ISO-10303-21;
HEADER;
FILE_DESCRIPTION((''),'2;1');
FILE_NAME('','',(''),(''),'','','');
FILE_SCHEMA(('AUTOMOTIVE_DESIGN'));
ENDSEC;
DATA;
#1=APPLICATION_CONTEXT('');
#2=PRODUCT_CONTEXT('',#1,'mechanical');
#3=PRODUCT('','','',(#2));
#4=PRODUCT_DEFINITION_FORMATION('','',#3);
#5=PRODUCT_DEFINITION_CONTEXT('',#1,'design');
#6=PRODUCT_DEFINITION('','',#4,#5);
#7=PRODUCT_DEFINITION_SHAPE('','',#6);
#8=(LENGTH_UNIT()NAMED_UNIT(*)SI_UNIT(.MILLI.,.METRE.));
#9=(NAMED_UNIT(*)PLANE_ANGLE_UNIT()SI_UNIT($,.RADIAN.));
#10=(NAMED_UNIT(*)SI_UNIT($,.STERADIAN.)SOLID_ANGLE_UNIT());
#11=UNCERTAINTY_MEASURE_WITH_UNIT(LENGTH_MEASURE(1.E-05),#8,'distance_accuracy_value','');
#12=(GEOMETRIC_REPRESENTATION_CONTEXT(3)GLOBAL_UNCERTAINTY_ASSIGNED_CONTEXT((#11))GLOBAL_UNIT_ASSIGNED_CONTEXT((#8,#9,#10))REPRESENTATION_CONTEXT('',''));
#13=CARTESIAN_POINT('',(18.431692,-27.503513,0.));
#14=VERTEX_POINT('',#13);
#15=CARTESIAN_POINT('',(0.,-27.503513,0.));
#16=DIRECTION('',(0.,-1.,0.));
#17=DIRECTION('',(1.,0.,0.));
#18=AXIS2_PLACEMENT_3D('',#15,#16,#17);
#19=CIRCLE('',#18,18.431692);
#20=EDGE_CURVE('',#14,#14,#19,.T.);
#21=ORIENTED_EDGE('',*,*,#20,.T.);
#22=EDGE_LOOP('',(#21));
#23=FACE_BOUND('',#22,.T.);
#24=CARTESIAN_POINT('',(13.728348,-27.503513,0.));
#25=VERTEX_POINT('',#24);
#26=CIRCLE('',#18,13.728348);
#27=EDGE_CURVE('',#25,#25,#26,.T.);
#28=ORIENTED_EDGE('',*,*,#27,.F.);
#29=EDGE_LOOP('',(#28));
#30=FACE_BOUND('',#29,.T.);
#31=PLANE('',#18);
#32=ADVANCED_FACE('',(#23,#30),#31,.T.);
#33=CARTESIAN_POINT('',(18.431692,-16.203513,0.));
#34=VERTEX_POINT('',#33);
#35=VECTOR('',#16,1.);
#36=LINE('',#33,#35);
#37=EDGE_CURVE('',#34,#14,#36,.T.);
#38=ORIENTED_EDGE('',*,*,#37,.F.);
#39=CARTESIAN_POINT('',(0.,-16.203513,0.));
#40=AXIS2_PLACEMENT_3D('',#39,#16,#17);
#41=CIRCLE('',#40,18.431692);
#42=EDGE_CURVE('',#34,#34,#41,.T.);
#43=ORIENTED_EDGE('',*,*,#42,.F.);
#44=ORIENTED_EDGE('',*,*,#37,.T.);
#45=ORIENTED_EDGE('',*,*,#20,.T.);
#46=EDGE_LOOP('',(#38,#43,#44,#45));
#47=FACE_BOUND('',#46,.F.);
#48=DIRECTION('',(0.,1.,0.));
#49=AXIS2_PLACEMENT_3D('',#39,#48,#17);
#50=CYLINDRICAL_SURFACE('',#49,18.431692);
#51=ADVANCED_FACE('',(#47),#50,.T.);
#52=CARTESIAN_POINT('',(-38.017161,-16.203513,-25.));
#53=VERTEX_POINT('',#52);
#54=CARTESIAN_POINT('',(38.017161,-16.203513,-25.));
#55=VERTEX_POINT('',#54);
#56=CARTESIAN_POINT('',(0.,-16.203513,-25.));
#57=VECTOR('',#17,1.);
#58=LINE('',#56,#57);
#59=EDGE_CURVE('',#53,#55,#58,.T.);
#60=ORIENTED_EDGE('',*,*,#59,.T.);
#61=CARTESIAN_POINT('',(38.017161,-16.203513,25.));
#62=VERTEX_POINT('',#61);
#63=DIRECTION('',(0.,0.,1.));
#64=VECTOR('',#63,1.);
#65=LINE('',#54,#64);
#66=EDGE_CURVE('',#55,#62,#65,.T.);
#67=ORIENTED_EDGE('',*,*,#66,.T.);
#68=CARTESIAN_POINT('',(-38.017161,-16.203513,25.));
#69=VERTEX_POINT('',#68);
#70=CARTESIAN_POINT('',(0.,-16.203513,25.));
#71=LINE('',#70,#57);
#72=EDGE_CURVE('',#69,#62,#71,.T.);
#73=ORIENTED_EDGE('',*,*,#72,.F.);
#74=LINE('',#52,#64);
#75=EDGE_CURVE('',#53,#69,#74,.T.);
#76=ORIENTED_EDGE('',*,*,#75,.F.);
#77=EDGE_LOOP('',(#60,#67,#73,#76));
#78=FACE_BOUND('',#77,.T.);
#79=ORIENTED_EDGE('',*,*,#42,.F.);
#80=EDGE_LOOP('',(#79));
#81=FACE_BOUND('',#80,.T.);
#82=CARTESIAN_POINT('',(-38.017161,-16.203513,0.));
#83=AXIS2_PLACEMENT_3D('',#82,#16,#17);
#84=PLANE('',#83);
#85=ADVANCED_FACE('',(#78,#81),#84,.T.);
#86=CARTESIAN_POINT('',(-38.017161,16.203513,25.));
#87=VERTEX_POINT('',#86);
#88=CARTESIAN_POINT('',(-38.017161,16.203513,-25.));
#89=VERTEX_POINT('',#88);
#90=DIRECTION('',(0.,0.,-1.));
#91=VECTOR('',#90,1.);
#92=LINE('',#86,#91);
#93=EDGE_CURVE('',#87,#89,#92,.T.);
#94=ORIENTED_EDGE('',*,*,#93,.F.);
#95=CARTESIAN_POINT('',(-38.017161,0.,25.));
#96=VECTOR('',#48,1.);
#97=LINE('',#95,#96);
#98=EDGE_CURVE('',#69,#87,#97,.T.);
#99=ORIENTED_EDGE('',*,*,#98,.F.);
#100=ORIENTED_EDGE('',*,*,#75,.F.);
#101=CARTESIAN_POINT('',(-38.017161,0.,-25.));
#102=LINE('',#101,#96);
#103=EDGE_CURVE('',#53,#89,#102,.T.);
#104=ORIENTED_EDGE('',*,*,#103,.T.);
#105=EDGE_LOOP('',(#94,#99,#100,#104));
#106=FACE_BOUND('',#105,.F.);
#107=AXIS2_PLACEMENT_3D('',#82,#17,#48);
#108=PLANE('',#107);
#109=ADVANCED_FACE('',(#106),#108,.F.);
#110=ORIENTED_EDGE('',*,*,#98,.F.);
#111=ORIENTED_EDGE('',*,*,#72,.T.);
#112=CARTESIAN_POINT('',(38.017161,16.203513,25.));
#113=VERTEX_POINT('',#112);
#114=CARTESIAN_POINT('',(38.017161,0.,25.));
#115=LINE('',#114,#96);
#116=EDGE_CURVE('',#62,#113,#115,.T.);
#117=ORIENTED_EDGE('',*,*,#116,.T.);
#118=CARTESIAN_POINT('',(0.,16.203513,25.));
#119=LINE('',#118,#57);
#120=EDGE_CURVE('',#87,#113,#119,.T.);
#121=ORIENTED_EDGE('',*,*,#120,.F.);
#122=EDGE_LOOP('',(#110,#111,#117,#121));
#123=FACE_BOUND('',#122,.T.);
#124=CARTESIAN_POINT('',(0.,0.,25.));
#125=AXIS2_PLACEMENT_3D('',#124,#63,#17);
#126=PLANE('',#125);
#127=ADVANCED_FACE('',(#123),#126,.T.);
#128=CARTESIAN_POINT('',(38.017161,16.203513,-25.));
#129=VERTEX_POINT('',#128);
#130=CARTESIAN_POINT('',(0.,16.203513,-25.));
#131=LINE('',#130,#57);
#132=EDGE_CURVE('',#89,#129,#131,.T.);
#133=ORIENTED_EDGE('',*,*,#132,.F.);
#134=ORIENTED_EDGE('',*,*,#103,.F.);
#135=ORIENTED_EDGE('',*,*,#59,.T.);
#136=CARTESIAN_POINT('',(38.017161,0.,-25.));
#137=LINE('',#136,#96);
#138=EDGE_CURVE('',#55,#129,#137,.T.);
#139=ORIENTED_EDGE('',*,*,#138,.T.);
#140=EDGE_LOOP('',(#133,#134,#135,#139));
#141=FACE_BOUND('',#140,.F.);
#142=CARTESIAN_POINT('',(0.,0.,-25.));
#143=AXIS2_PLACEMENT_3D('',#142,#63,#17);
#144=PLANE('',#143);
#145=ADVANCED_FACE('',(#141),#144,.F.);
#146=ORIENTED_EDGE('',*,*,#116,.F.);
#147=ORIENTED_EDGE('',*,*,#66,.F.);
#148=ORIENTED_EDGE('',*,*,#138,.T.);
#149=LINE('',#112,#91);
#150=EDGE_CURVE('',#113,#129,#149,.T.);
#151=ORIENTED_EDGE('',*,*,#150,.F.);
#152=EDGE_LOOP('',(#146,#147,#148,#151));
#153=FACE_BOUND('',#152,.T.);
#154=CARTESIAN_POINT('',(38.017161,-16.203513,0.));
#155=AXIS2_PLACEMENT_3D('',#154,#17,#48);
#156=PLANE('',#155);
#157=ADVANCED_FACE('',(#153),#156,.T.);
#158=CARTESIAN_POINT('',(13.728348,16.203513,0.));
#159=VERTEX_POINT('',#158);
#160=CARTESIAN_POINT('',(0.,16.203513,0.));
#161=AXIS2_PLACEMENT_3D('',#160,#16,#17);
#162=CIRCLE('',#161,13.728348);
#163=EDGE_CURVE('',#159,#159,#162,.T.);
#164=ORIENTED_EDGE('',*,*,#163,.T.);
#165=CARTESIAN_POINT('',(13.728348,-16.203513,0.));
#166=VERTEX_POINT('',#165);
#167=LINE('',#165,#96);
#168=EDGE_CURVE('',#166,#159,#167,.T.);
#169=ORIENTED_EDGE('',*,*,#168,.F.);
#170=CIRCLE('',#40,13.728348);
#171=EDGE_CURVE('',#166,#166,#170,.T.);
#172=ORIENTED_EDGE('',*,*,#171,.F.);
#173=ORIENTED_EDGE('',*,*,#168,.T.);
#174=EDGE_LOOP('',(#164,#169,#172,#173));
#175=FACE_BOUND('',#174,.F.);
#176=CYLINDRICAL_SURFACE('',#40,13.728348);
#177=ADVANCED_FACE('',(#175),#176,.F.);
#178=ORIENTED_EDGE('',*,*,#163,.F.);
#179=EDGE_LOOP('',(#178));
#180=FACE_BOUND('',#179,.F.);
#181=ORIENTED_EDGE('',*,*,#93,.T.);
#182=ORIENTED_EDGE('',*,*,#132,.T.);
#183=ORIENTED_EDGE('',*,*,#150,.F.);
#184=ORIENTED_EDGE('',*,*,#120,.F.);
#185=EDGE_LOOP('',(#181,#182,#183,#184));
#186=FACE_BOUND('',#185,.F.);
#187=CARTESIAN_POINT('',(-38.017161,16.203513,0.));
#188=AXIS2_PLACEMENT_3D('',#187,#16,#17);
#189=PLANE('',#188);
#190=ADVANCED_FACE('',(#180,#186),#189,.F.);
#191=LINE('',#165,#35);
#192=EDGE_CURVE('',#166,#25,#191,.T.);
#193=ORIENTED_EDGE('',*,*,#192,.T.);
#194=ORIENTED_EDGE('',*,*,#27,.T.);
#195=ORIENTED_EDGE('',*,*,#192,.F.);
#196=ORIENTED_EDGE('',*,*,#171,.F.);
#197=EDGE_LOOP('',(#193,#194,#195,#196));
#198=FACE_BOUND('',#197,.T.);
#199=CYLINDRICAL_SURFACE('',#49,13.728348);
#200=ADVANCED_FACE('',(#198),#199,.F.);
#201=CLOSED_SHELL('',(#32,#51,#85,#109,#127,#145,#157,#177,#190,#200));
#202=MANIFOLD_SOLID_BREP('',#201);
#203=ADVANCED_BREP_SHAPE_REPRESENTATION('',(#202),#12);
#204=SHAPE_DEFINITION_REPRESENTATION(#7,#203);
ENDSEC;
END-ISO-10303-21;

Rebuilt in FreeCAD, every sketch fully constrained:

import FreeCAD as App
import Part
import Sketcher

V = App.Vector


def add_polygon(sketch, points):
    """Adds a closed chain of lines whose ends are joined by coincident constraints."""
    first, n = sketch.GeometryCount, len(points)
    for a, b in zip(points, points[1:] + points[:1]):
        sketch.addGeometry(Part.LineSegment(App.Vector(*a, 0), App.Vector(*b, 0)), False)
    for i in range(n):
        sketch.addConstraint(Sketcher.Constraint("Coincident", first + i, 2, first + (i + 1) % n, 1))

doc = App.newDocument("Part")
body = doc.addObject("PartDesign::Body", "Body")

# Sketch on XY plane
sketch1 = body.newObject("Sketcher::SketchObject", "Sketch")
sketch1.AttachmentSupport = (doc.getObject("XY_Plane"), [""])
sketch1.MapMode = "FlatFace"
add_polygon(sketch1, [(-38, 16), (-38, -16), (38, -16), (38, 16)])  # lines 0-3
sketch1.addConstraint(Sketcher.Constraint("Vertical", 0))
sketch1.addConstraint(Sketcher.Constraint("Horizontal", 1))
sketch1.addConstraint(Sketcher.Constraint("Vertical", 2))
sketch1.addConstraint(Sketcher.Constraint("Horizontal", 3))
sketch1.addConstraint(Sketcher.Constraint("Symmetric", 0, 2, 2, 2, -1, 1))
sketch1.addConstraint(Sketcher.Constraint("DistanceX", 1, 1, 1, 2, 76.034322))
sketch1.addConstraint(Sketcher.Constraint("DistanceY", 0, 2, 0, 1, 32.407026))
pad1 = body.newObject("PartDesign::Pad", "Pad")
pad1.Profile = sketch1
pad1.Type = "TwoLengths"
pad1.Length = 25
pad1.Length2 = 25

# Sketch on XZ plane
sketch2 = body.newObject("Sketcher::SketchObject", "Sketch001")
sketch2.AttachmentSupport = (doc.getObject("XZ_Plane"), [""])
sketch2.MapMode = "FlatFace"
sketch2.AttachmentOffset = App.Placement(V(0, 0, 16.203513), App.Rotation())
sketch2.addGeometry(Part.Circle(V(0, 0, 0), V(0, 0, 1), 18), False)
sketch2.addGeometry(Part.Circle(V(0, 0, 0), V(0, 0, 1), 14), False)
sketch2.addConstraint(Sketcher.Constraint("Coincident", 0, 3, -1, 1))
sketch2.addConstraint(Sketcher.Constraint("Coincident", 1, 3, -1, 1))
sketch2.addConstraint(Sketcher.Constraint("Diameter", 0, 36.863384))
sketch2.addConstraint(Sketcher.Constraint("Diameter", 1, 27.456696))
pad2 = body.newObject("PartDesign::Pad", "Pad001")
pad2.Profile = sketch2
pad2.Length = 11.3

# Sketch on XZ plane
sketch3 = body.newObject("Sketcher::SketchObject", "Sketch002")
sketch3.AttachmentSupport = (doc.getObject("XZ_Plane"), [""])
sketch3.MapMode = "FlatFace"
sketch3.AttachmentOffset = App.Placement(V(0, 0, 16.203513), App.Rotation())
sketch3.addGeometry(Part.Circle(V(0, 0, 0), V(0, 0, 1), 14), False)
sketch3.addConstraint(Sketcher.Constraint("Coincident", 0, 3, -1, 1))
sketch3.addConstraint(Sketcher.Constraint("Diameter", 0, 27.456696))
pocket1 = body.newObject("PartDesign::Pocket", "Pocket")
pocket1.Profile = sketch3
pocket1.Type = "ThroughAll"

doc.recompute()
